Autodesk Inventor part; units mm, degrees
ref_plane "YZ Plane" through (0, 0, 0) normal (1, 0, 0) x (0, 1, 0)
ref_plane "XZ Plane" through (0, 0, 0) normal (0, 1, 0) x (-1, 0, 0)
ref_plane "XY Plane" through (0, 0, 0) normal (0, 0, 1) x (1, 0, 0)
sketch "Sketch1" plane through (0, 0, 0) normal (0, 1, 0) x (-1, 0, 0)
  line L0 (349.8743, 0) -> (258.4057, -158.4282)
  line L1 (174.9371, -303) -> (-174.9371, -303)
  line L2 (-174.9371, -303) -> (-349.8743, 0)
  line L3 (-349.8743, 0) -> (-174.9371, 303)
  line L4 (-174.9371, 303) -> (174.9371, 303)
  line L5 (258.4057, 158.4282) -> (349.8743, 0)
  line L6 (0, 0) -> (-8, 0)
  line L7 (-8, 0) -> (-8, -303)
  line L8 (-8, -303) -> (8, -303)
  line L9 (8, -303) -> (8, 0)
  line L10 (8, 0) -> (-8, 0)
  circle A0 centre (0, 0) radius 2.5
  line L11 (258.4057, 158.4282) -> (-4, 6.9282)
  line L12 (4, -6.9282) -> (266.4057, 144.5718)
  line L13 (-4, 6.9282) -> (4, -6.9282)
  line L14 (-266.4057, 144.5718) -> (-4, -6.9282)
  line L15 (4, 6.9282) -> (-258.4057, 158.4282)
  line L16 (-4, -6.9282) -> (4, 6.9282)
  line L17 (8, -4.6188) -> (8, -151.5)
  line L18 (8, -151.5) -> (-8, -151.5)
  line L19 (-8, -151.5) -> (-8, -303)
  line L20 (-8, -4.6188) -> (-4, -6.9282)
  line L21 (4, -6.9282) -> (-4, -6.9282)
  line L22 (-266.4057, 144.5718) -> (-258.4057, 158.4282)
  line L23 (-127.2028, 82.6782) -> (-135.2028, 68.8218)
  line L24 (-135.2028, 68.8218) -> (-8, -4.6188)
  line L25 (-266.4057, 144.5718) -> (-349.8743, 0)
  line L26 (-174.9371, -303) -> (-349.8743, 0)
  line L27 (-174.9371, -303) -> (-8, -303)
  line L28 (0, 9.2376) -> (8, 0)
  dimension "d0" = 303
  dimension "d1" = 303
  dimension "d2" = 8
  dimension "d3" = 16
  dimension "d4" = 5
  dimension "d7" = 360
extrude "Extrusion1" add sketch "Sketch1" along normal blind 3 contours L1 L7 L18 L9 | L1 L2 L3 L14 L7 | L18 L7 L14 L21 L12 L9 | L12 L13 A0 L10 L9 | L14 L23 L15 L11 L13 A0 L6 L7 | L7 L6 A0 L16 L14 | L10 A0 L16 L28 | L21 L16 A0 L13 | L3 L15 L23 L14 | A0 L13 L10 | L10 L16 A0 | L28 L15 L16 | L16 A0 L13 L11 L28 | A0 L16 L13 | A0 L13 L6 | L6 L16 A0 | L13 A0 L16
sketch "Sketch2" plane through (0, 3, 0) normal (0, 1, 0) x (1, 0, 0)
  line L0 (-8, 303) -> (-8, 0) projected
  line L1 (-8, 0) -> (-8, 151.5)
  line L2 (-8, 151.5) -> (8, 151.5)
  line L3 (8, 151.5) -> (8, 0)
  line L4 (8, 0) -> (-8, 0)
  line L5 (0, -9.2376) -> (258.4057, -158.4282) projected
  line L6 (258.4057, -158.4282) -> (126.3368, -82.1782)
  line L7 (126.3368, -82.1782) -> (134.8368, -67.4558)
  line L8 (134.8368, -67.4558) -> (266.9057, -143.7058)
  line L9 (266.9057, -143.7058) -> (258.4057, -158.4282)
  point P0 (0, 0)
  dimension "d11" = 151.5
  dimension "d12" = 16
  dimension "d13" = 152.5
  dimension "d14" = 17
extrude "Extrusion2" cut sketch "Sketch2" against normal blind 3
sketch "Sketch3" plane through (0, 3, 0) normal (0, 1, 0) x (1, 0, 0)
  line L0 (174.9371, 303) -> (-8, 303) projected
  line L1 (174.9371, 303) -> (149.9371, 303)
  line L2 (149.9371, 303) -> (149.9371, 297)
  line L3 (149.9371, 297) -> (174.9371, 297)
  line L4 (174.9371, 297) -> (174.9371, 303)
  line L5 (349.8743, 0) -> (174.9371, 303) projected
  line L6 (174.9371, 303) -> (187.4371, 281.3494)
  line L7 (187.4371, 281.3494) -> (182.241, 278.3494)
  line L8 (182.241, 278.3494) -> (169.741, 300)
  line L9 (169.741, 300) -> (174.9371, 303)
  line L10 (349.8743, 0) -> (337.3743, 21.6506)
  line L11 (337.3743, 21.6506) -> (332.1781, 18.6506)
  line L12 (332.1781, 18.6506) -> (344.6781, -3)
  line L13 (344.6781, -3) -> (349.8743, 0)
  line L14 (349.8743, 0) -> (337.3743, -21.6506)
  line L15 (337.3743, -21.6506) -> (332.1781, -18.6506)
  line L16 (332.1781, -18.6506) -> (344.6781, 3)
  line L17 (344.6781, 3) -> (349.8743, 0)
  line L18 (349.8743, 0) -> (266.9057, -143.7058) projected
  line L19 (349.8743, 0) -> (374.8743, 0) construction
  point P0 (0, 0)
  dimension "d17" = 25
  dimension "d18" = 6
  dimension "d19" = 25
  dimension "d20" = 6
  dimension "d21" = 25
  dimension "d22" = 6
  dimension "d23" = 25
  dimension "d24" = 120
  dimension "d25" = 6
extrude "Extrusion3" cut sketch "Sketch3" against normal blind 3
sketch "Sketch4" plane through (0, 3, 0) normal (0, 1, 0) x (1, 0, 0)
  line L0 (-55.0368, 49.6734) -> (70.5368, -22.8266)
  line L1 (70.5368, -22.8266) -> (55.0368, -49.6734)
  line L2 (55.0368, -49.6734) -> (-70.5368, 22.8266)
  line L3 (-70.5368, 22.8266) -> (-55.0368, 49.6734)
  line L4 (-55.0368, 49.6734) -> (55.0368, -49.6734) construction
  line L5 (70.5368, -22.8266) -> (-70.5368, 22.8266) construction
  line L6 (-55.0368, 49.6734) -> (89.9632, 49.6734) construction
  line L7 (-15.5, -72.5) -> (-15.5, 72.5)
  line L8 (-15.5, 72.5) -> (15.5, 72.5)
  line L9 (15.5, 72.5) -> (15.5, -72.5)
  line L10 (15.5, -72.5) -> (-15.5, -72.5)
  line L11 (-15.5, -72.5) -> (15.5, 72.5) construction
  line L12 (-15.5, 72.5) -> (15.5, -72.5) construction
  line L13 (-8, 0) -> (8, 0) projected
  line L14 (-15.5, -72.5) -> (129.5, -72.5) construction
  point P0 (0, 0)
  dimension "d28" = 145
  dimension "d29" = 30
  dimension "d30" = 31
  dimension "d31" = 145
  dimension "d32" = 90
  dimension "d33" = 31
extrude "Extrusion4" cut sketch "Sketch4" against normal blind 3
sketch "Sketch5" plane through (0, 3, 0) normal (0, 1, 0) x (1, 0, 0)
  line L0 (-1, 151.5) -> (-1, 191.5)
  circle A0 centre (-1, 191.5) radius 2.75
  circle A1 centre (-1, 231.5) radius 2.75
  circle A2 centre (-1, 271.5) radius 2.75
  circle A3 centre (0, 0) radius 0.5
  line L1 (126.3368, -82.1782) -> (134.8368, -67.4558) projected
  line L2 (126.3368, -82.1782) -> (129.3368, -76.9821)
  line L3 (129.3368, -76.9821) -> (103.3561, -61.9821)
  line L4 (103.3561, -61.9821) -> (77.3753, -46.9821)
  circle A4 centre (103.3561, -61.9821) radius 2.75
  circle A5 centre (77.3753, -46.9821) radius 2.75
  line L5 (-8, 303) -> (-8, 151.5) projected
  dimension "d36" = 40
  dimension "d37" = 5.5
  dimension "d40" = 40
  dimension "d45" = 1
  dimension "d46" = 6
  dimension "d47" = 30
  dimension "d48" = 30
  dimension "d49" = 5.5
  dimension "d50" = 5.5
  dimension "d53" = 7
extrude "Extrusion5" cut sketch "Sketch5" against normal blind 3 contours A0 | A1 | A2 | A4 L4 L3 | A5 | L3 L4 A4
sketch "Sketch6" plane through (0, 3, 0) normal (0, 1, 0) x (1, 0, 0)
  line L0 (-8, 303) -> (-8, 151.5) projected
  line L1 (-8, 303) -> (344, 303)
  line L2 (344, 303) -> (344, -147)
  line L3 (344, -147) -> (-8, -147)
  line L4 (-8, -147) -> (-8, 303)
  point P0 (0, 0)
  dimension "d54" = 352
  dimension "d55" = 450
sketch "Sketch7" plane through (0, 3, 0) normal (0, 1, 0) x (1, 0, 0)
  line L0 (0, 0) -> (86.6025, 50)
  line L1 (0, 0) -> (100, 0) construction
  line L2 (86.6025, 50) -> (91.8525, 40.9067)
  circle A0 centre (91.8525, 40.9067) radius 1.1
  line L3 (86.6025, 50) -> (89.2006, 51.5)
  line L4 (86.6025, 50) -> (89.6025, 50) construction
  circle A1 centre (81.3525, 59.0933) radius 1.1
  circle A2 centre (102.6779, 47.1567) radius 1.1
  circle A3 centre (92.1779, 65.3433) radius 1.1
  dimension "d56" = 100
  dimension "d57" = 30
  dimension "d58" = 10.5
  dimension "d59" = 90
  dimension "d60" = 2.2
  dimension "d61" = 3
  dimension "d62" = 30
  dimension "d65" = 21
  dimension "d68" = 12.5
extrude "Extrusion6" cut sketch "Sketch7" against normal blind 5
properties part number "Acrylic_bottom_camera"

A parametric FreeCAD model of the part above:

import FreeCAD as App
import Part
import Sketcher
from FreeCAD import Vector
Q = App.Units.Quantity


def add_polygon(sketch, points):
    """Adds a closed chain of lines whose ends are joined by coincident constraints."""
    first, n = sketch.GeometryCount, len(points)
    for a, b in zip(points, points[1:] + points[:1]):
        sketch.addGeometry(Part.LineSegment(App.Vector(*a, 0), App.Vector(*b, 0)), False)
    for i in range(n):
        sketch.addConstraint(Sketcher.Constraint("Coincident", first + i, 2, first + (i + 1) % n, 1))

doc = App.newDocument("Part")
body = doc.addObject("PartDesign::Body", "Body")

# Sketch on XZ plane
sketch1 = body.newObject("Sketcher::SketchObject", "Sketch")
sketch1.AttachmentSupport = (doc.getObject("XZ_Plane"), [""])
sketch1.MapMode = "FlatFace"
add_polygon(sketch1, [(-8, -303), (-8, 0), (-3.2, 5.5), (-4, 6.9), (258.4, 158.4), (349.9, 0), (174.9, -303)])  # lines 0-6
sketch1.addConstraint([
    Sketcher.Constraint("Vertical", 0),
    Sketcher.Constraint("Horizontal", 6),
    Sketcher.Constraint("PointOnObject", 0, 2, -1),
    Sketcher.Constraint("PointOnObject", 4, 2, -1),
    Sketcher.Constraint("Perpendicular", 2, 3),
    Sketcher.Constraint("Perpendicular", 3, 4),
    Sketcher.Constraint("DistanceY", 0, 1, 0, 2, 303.0),
    Sketcher.Constraint("Distance", 3, 303.0),
    Sketcher.Constraint("DistanceX", 0, 2, -1, 1, 8.0),
    Sketcher.Constraint("Angle", 2, Q("120 deg")),
    Sketcher.Constraint("Angle", 5, Q("-120 deg")),
    Sketcher.Constraint("DistanceX", 2, 2, -1, 1, 4.0),
    Sketcher.Constraint("Distance", 2, 1.6),
    Sketcher.Constraint("DistanceX", 6, 2, 6, 1, 182.937),
])
pad1 = body.newObject("PartDesign::Pad", "Pad")
pad1.Profile = sketch1
pad1.Length = 3
pad1.Reversed = True

# Sketch on XZ plane
sketch2 = body.newObject("Sketcher::SketchObject", "Sketch001")
sketch2.AttachmentSupport = (doc.getObject("XZ_Plane"), [""])
sketch2.MapMode = "FlatFace"
sketch2.AttachmentOffset = App.Placement(Vector(0, 0, -3), App.Rotation())
add_polygon(sketch2, [(8, -152), (-8, -152), (-8, 0), (8, 0)])  # lines 0-3
add_polygon(sketch2, [(135, 67), (126, 82), (258, 158), (267, 144)])  # lines 4-7
sketch2.addConstraint([
    Sketcher.Constraint("Horizontal", 0),
    Sketcher.Constraint("Vertical", 1),
    Sketcher.Constraint("Horizontal", 2),
    Sketcher.Constraint("Vertical", 3),
    Sketcher.Constraint("Symmetric", 1, 2, 2, 2, -1, 1),
    Sketcher.Constraint("Perpendicular", 4, 5),
    Sketcher.Constraint("Perpendicular", 5, 6),
    Sketcher.Constraint("Perpendicular", 6, 7),
    Sketcher.Constraint("DistanceX", 0, 2, 0, 1, 16.0),
    Sketcher.Constraint("Distance", 4, 17.0),
    Sketcher.Constraint("DistanceY", 1, 1, 1, 2, 151.5),
    Sketcher.Constraint("Distance", 5, 152.5),
    Sketcher.Constraint("Angle", 4, Q("120 deg")),
    Sketcher.Constraint("DistanceX", -1, 1, 4, 2, 126.3368),
    Sketcher.Constraint("DistanceY", -1, 1, 4, 2, 82.1782),
])
pocket1 = body.newObject("PartDesign::Pocket", "Pocket")
pocket1.Profile = sketch2
pocket1.Length = 3
pocket1.Reversed = True

# Sketch on XZ plane
sketch3 = body.newObject("Sketcher::SketchObject", "Sketch002")
sketch3.AttachmentSupport = (doc.getObject("XZ_Plane"), [""])
sketch3.MapMode = "FlatFace"
sketch3.AttachmentOffset = App.Placement(Vector(0, 0, -3), App.Rotation())
add_polygon(sketch3, [(150, -297), (171, -297), (182, -278), (187, -281), (175, -303), (150, -303)])  # lines 0-5
add_polygon(sketch3, [(350, 0), (337, -22), (332, -19), (343, 0), (332, 19), (337, 22)])  # lines 6-11
sketch3.addConstraint([
    Sketcher.Constraint("Horizontal", 0),
    Sketcher.Constraint("Horizontal", 4),
    Sketcher.Constraint("Vertical", 5),
    Sketcher.Constraint("Symmetric", 7, 2, 9, 2, -1),
    Sketcher.Constraint("Symmetric", 6, 2, 10, 2, -1),
    Sketcher.Constraint("PointOnObject", 8, 2, -1),
    Sketcher.Constraint("PointOnObject", 11, 2, -1),
    Sketcher.Constraint("Perpendicular", 1, 2),
    Sketcher.Constraint("Perpendicular", 2, 3),
    Sketcher.Constraint("Parallel", 3, 6),
    Sketcher.Constraint("Perpendicular", 6, 7),
    Sketcher.Constraint("Perpendicular", 7, 8),
    Sketcher.Constraint("Equal", 3, 6),
    Sketcher.Constraint("Equal", 2, 7),
    Sketcher.Constraint("Equal", 1, 8),
    Sketcher.Constraint("DistanceX", 4, 2, 4, 1, 25.0),
    Sketcher.Constraint("DistanceY", 5, 1, 5, 2, 6.0),
    Sketcher.Constraint("Angle", 3, Q("-120 deg")),
    Sketcher.Constraint("Distance", 3, 25.0),
    Sketcher.Constraint("DistanceY", 0, 2, -1, 1, 297.0),
    Sketcher.Constraint("DistanceX", -1, 1, 0, 2, 171.473),
    Sketcher.Constraint("DistanceX", -1, 1, 7, 2, 332.178),
])
pocket2 = body.newObject("PartDesign::Pocket", "Pocket001")
pocket2.Profile = sketch3
pocket2.Length = 3
pocket2.Reversed = True

# Sketch on XZ plane
sketch4 = body.newObject("Sketcher::SketchObject", "Sketch003")
sketch4.AttachmentSupport = (doc.getObject("XZ_Plane"), [""])
sketch4.MapMode = "FlatFace"
sketch4.AttachmentOffset = App.Placement(Vector(0, 0, -3), App.Rotation())
add_polygon(sketch4, [(-16, -27), (-55, -50), (-71, -23), (-16, 9), (-16, 72), (16, 72), (16, 27), (55, 50), (71, 23), (16, -9), (16, -72), (-16, -72)])  # lines 0-11
sketch4.addConstraint([
    Sketcher.Constraint("Vertical", 3),
    Sketcher.Constraint("Horizontal", 4),
    Sketcher.Constraint("Vertical", 5),
    Sketcher.Constraint("Vertical", 9),
    Sketcher.Constraint("Horizontal", 10),
    Sketcher.Constraint("Vertical", 11),
    Sketcher.Constraint("Symmetric", 0, 2, 6, 2, -1, 1),
    Sketcher.Constraint("Symmetric", 1, 2, 7, 2, -1, 1),
    Sketcher.Constraint("Symmetric", 2, 2, 8, 2, -1, 1),
    Sketcher.Constraint("Symmetric", 4, 2, 10, 2, -1, 1),
    Sketcher.Constraint("Perpendicular", 0, 1),
    Sketcher.Constraint("Perpendicular", 1, 2),
    Sketcher.Constraint("Parallel", 2, 6),
    Sketcher.Constraint("Vertical", 5, 2, 8, 2),
    Sketcher.Constraint("DistanceX", 4, 1, 4, 2, 31.0),
    Sketcher.Constraint("Angle", 2, Q("30 deg")),
    Sketcher.Constraint("Distance", 1, 31.0),
    Sketcher.Constraint("DistanceY", -1, 1, 3, 2, 72.5),
    Sketcher.Constraint("DistanceY", 1, 2, 6, 2, 72.5),
    Sketcher.Constraint("DistanceY", 3, 1, 3, 2, 63.551),
])
pocket3 = body.newObject("PartDesign::Pocket", "Pocket002")
pocket3.Profile = sketch4
pocket3.Length = 3
pocket3.Reversed = True

# Sketch on XZ plane
sketch5 = body.newObject("Sketcher::SketchObject", "Sketch004")
sketch5.AttachmentSupport = (doc.getObject("XZ_Plane"), [""])
sketch5.MapMode = "FlatFace"
sketch5.AttachmentOffset = App.Placement(Vector(0, 0, -3), App.Rotation())
sketch5.addGeometry([
    Part.Circle(Vector(-1, -191.5, 0), Vector(0, 0, 1), 2.8),  # 0
    Part.Circle(Vector(-1, -231.5, 0), Vector(0, 0, 1), 2.8),  # 1
    Part.Circle(Vector(-1, -271.5, 0), Vector(0, 0, 1), 2.8),  # 2
    Part.Circle(Vector(103.4, 62, 0), Vector(0, 0, 1), 2.8),  # 3
    Part.Circle(Vector(77.4, 47, 0), Vector(0, 0, 1), 2.8),  # 4
], False)
sketch5.addConstraint([
    Sketcher.Constraint("Equal", 0, 1),
    Sketcher.Constraint("Equal", 1, 2),
    Sketcher.Constraint("Equal", 2, 3),
    Sketcher.Constraint("Equal", 3, 4),
    Sketcher.Constraint("Vertical", 0, 3, 1, 3),
    Sketcher.Constraint("Vertical", 1, 3, 2, 3),
    Sketcher.Constraint("Diameter", 0, 5.5),
    Sketcher.Constraint("DistanceX", 0, 3, -1, 1, 1.0),
    Sketcher.Constraint("DistanceY", 1, 3, 0, 3, 40.0),
    Sketcher.Constraint("DistanceY", 2, 3, 1, 3, 40.0),
    Sketcher.Constraint("DistanceY", 4, 3, 3, 3, 15.0),
    Sketcher.Constraint("DistanceY", 0, 3, -1, 1, 191.5),
    Sketcher.Constraint("DistanceX", -1, 1, 3, 3, 103.356),
    Sketcher.Constraint("DistanceY", -1, 1, 3, 3, 61.982),
    Sketcher.Constraint("DistanceX", -1, 1, 4, 3, 77.3753),
])
pocket4 = body.newObject("PartDesign::Pocket", "Pocket003")
pocket4.Profile = sketch5
pocket4.Length = 3
pocket4.Reversed = True

# Sketch on XZ plane
sketch6 = body.newObject("Sketcher::SketchObject", "Sketch005")
sketch6.AttachmentSupport = (doc.getObject("XZ_Plane"), [""])
sketch6.MapMode = "FlatFace"
sketch6.AttachmentOffset = App.Placement(Vector(0, 0, -3), App.Rotation())
sketch6.addGeometry([
    Part.Circle(Vector(91.9, -40.9, 0), Vector(0, 0, 1), 1.1),
    Part.Circle(Vector(81.4, -59.1, 0), Vector(0, 0, 1), 1.1),
    Part.Circle(Vector(102.7, -47.2, 0), Vector(0, 0, 1), 1.1),
    Part.Circle(Vector(92.2, -65.3, 0), Vector(0, 0, 1), 1.1),
], False)
sketch6.addConstraint([
    Sketcher.Constraint("Equal", 0, 1),
    Sketcher.Constraint("Equal", 1, 2),
    Sketcher.Constraint("Equal", 2, 3),
    Sketcher.Constraint("Diameter", 0, 2.2),
    Sketcher.Constraint("DistanceX", 1, 3, 0, 3, 10.5),
    Sketcher.Constraint("DistanceX", 3, 3, 2, 3, 10.5),
    Sketcher.Constraint("DistanceY", 2, 3, 0, 3, 6.25),
    Sketcher.Constraint("DistanceY", 3, 3, 1, 3, 6.25),
    Sketcher.Constraint("DistanceX", -1, 1, 2, 3, 102.678),
    Sketcher.Constraint("DistanceX", -1, 1, 0, 3, 91.8525),
    Sketcher.Constraint("DistanceY", 0, 3, -1, 1, 40.9067),
    Sketcher.Constraint("DistanceY", 1, 3, -1, 1, 59.0933),
])
pocket5 = body.newObject("PartDesign::Pocket", "Pocket004")
pocket5.Profile = sketch6
pocket5.Length = 5
pocket5.Reversed = True

doc.recompute()
